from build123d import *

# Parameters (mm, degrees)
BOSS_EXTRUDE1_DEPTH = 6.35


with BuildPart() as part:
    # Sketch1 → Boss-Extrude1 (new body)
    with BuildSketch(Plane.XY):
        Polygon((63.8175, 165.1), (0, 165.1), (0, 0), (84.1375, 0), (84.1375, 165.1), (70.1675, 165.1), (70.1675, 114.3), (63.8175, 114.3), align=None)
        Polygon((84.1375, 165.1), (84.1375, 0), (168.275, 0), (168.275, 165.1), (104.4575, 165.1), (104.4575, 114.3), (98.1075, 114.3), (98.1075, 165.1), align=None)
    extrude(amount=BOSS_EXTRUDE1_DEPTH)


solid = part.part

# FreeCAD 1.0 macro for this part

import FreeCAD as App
import Part
import Sketcher
Q = App.Units.Quantity


def add_polygon(sketch, points):
    """Adds a closed chain of lines whose ends are joined by coincident constraints."""
    first, n = sketch.GeometryCount, len(points)
    for a, b in zip(points, points[1:] + points[:1]):
        sketch.addGeometry(Part.LineSegment(App.Vector(*a, 0), App.Vector(*b, 0)), False)
    for i in range(n):
        sketch.addConstraint(Sketcher.Constraint("Coincident", first + i, 2, first + (i + 1) % n, 1))

doc = App.newDocument("Part")
body = doc.addObject("PartDesign::Body", "Body")

# Sketch on XY plane
sketch1 = doc.addObject("Sketcher::SketchObject", "Sketch")
body.addObject(sketch1)
sketch1.AttachmentSupport = (doc.XY_Plane, [""])
sketch1.MapMode = "FlatFace"
add_polygon(sketch1, [(63.8175, 165.1), (0, 165.1), (0, 0), (168.275, 0), (168.275, 165.1), (104.4575, 165.1), (104.4575, 114.3), (98.1075, 114.3), (98.1075, 165.1), (70.1675, 165.1), (70.1675, 114.3), (63.8175, 114.3)])  # lines 0-11
sketch1.addConstraint(Sketcher.Constraint("Horizontal", 0))
sketch1.addConstraint(Sketcher.Constraint("Vertical", 1))
sketch1.addConstraint(Sketcher.Constraint("Horizontal", 2))
sketch1.addConstraint(Sketcher.Constraint("Vertical", 3))
sketch1.addConstraint(Sketcher.Constraint("Horizontal", 4))
sketch1.addConstraint(Sketcher.Constraint("Vertical", 5))
sketch1.addConstraint(Sketcher.Constraint("Horizontal", 6))
sketch1.addConstraint(Sketcher.Constraint("Vertical", 7))
sketch1.addConstraint(Sketcher.Constraint("Horizontal", 8))
sketch1.addConstraint(Sketcher.Constraint("Vertical", 9))
sketch1.addConstraint(Sketcher.Constraint("Horizontal", 10))
sketch1.addConstraint(Sketcher.Constraint("Vertical", 11))
sketch1.addConstraint(Sketcher.Constraint("Coincident", 1, 2, -1, 1))
sketch1.addConstraint(Sketcher.Constraint("Horizontal", 0, 2, 3, 2))
sketch1.addConstraint(Sketcher.Constraint("Horizontal", 4, 2, 7, 2))
sketch1.addConstraint(Sketcher.Constraint("Horizontal", 6, 2, 9, 2))
sketch1.addConstraint(Sketcher.Constraint("Equal", 0, 4))
sketch1.addConstraint(Sketcher.Constraint("Equal", 6, 10))
sketch1.addConstraint(Sketcher.Constraint("DistanceY", 5, 2, 5, 1, Q("2 in")))
sketch1.addConstraint(Sketcher.Constraint("DistanceX", 8, 2, 8, 1, Q("1.1 in")))
sketch1.addConstraint(Sketcher.Constraint("DistanceY", 1, 2, 1, 1, Q("6.5 in")))
sketch1.addConstraint(Sketcher.Constraint("DistanceX", 6, 2, 6, 1, Q("0.25 in")))
sketch1.addConstraint(Sketcher.Constraint("DistanceX", 2, 1, 2, 2, Q("6.625 in")))
pad1 = doc.addObject("PartDesign::Pad", "Pad")
body.addObject(pad1)
pad1.Profile = sketch1
pad1.Length = Q("0.25 in")

doc.recompute()
